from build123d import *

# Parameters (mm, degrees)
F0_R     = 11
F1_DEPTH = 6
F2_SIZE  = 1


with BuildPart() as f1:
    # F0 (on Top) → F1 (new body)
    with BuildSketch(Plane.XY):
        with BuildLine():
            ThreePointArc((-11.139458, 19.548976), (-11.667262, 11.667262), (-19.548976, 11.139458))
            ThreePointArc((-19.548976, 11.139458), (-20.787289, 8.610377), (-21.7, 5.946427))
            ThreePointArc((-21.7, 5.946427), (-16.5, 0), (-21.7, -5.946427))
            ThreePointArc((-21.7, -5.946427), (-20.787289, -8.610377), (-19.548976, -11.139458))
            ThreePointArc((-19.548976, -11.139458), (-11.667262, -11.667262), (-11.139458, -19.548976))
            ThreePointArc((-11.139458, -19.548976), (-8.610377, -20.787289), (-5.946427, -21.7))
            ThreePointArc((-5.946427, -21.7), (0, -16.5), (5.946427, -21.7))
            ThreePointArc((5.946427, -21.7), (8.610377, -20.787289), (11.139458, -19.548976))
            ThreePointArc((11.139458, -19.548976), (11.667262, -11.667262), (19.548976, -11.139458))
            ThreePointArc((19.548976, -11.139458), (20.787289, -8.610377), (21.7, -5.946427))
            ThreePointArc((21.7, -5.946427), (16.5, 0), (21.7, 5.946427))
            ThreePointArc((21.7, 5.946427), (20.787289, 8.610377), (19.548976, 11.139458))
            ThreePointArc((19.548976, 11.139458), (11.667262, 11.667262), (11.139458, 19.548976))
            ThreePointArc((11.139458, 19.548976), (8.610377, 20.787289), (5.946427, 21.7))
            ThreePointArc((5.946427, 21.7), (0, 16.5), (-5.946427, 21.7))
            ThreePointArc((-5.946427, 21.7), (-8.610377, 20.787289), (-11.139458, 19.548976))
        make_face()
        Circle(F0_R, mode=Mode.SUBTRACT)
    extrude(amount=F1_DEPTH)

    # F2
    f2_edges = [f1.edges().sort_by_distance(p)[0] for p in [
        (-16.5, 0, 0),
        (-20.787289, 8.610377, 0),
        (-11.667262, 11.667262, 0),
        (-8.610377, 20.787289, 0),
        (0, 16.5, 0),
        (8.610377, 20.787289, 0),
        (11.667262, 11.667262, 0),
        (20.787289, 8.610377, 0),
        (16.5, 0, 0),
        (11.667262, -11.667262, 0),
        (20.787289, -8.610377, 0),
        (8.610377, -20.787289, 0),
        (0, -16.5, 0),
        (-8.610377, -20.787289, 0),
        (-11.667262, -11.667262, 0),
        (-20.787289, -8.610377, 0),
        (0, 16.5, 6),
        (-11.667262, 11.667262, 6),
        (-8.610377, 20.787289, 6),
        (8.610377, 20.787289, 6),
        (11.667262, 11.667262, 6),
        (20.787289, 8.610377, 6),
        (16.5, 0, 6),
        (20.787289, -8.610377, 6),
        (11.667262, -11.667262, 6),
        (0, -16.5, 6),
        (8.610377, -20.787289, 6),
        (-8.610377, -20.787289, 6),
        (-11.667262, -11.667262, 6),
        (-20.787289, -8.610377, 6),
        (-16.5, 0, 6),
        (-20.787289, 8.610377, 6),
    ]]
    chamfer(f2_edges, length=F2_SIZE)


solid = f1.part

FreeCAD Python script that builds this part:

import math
import FreeCAD as App
import Part
import Sketcher
from FreeCAD import Vector
Q = App.Units.Quantity


def edges_at(feature, points):
    """Names of the edges that pass closest to the given points."""
    edges = feature.Shape.Edges
    near = lambda p: min(range(len(edges)), key=lambda i: edges[i].distToShape(Part.Vertex(*p))[0])
    return sorted({f"Edge{near(p) + 1}" for p in points})

doc = App.newDocument("Part")
body = doc.addObject("PartDesign::Body", "Body")

# Sketch on XY plane
sketch1 = body.newObject("Sketcher::SketchObject", "Sketch")
sketch1.AttachmentSupport = (doc.getObject("XY_Plane"), [""])
sketch1.MapMode = "FlatFace"
sketch1.addGeometry(Part.ArcOfCircle(Part.Circle(Vector(-15.909902, 15.909902, 0), Vector(0, 0, 1), 6), math.radians(-127.337743), math.radians(37.337743)), False)
sketch1.addGeometry(Part.ArcOfCircle(Part.Circle(Vector(0.000038, -0.000016, 0), Vector(0, 0, 1), 22.500041), math.radians(150.324522), math.radians(164.675475)), False)
sketch1.addGeometry(Part.ArcOfCircle(Part.Circle(Vector(-22.499999, 0, 0), Vector(0, 0, 1), 5.999999), math.radians(-82.337749), math.radians(82.337749)), False)
sketch1.addGeometry(Part.ArcOfCircle(Part.Circle(Vector(0.000038, 0.000016, 0), Vector(0, 0, 1), 22.500041), math.radians(-164.675475), math.radians(-150.324522)), False)
sketch1.addGeometry(Part.ArcOfCircle(Part.Circle(Vector(-15.909902, -15.909902, 0), Vector(0, 0, 1), 6), math.radians(-37.337743), math.radians(127.337743)), False)
sketch1.addGeometry(Part.ArcOfCircle(Part.Circle(Vector(0.000016, 0.000038, 0), Vector(0, 0, 1), 22.500041), math.radians(-119.675478), math.radians(-105.324525)), False)
sketch1.addGeometry(Part.ArcOfCircle(Part.Circle(Vector(0, -22.499999, 0), Vector(0, 0, 1), 5.999999), math.radians(7.662251), math.radians(172.337749)), False)
sketch1.addGeometry(Part.ArcOfCircle(Part.Circle(Vector(-0.000016, 0.000038, 0), Vector(0, 0, 1), 22.500041), math.radians(-74.675475), math.radians(-60.324522)), False)
sketch1.addGeometry(Part.ArcOfCircle(Part.Circle(Vector(15.909902, -15.909902, 0), Vector(0, 0, 1), 6), math.radians(52.662257), math.radians(217.337743)), False)
sketch1.addGeometry(Part.ArcOfCircle(Part.Circle(Vector(-0.000038, 0.000016, 0), Vector(0, 0, 1), 22.500041), math.radians(-29.675478), math.radians(-15.324525)), False)
sketch1.addGeometry(Part.ArcOfCircle(Part.Circle(Vector(22.499999, 0, 0), Vector(0, 0, 1), 5.999999), math.radians(97.662251), math.radians(262.337749)), False)
sketch1.addGeometry(Part.ArcOfCircle(Part.Circle(Vector(-0.000038, -0.000016, 0), Vector(0, 0, 1), 22.500041), math.radians(15.324525), math.radians(29.675478)), False)
sketch1.addGeometry(Part.ArcOfCircle(Part.Circle(Vector(15.909902, 15.909902, 0), Vector(0, 0, 1), 6), math.radians(142.662257), math.radians(307.337743)), False)
sketch1.addGeometry(Part.ArcOfCircle(Part.Circle(Vector(-0.000016, -0.000038, 0), Vector(0, 0, 1), 22.500041), math.radians(60.324522), math.radians(74.675475)), False)
sketch1.addGeometry(Part.ArcOfCircle(Part.Circle(Vector(0, 22.499999, 0), Vector(0, 0, 1), 5.999999), math.radians(-172.337749), math.radians(-7.662251)), False)
sketch1.addGeometry(Part.ArcOfCircle(Part.Circle(Vector(0.000016, -0.000038, 0), Vector(0, 0, 1), 22.500041), math.radians(105.324525), math.radians(119.675478)), False)
sketch1.addGeometry(Part.Circle(Vector(0, 0, 0), Vector(0, 0, 1), 11), False)
sketch1.addConstraint(Sketcher.Constraint("Coincident", 0, 1, 1, 1))
sketch1.addConstraint(Sketcher.Constraint("Coincident", 1, 2, 2, 2))
sketch1.addConstraint(Sketcher.Constraint("Coincident", 2, 1, 3, 1))
sketch1.addConstraint(Sketcher.Constraint("Coincident", 3, 2, 4, 2))
sketch1.addConstraint(Sketcher.Constraint("Coincident", 4, 1, 5, 1))
sketch1.addConstraint(Sketcher.Constraint("Coincident", 5, 2, 6, 2))
sketch1.addConstraint(Sketcher.Constraint("Coincident", 6, 1, 7, 1))
sketch1.addConstraint(Sketcher.Constraint("Coincident", 7, 2, 8, 2))
sketch1.addConstraint(Sketcher.Constraint("Coincident", 8, 1, 9, 1))
sketch1.addConstraint(Sketcher.Constraint("Coincident", 9, 2, 10, 2))
sketch1.addConstraint(Sketcher.Constraint("Coincident", 10, 1, 11, 1))
sketch1.addConstraint(Sketcher.Constraint("Coincident", 11, 2, 12, 2))
sketch1.addConstraint(Sketcher.Constraint("Coincident", 12, 1, 13, 1))
sketch1.addConstraint(Sketcher.Constraint("Coincident", 13, 2, 14, 2))
sketch1.addConstraint(Sketcher.Constraint("Coincident", 14, 1, 15, 1))
sketch1.addConstraint(Sketcher.Constraint("Coincident", 15, 2, 0, 2))
sketch1.addConstraint(Sketcher.Constraint("Coincident", 16, 3, -1, 1))
sketch1.addConstraint(Sketcher.Constraint("Equal", 0, 2))
sketch1.addConstraint(Sketcher.Constraint("Equal", 1, 3))
sketch1.addConstraint(Sketcher.Constraint("Equal", 2, 4))
sketch1.addConstraint(Sketcher.Constraint("Equal", 3, 5))
sketch1.addConstraint(Sketcher.Constraint("Equal", 4, 6))
sketch1.addConstraint(Sketcher.Constraint("Equal", 5, 7))
sketch1.addConstraint(Sketcher.Constraint("Equal", 6, 8))
sketch1.addConstraint(Sketcher.Constraint("Equal", 7, 9))
sketch1.addConstraint(Sketcher.Constraint("Equal", 8, 10))
sketch1.addConstraint(Sketcher.Constraint("Equal", 9, 11))
sketch1.addConstraint(Sketcher.Constraint("Equal", 10, 12))
sketch1.addConstraint(Sketcher.Constraint("Equal", 11, 13))
sketch1.addConstraint(Sketcher.Constraint("Equal", 12, 14))
sketch1.addConstraint(Sketcher.Constraint("Equal", 13, 15))
sketch1.addConstraint(Sketcher.Constraint("Symmetric", 0, 3, 8, 3, -1, 1))
sketch1.addConstraint(Sketcher.Constraint("Symmetric", 1, 3, 9, 3, -1, 1))
sketch1.addConstraint(Sketcher.Constraint("Symmetric", 2, 3, 10, 3, -1, 1))
sketch1.addConstraint(Sketcher.Constraint("Symmetric", 3, 3, 11, 3, -1, 1))
sketch1.addConstraint(Sketcher.Constraint("Symmetric", 4, 3, 12, 3, -1, 1))
sketch1.addConstraint(Sketcher.Constraint("Symmetric", 5, 3, 13, 3, -1, 1))
sketch1.addConstraint(Sketcher.Constraint("Symmetric", 6, 3, 14, 3, -1, 1))
sketch1.addConstraint(Sketcher.Constraint("Symmetric", 7, 3, 15, 3, -1, 1))
sketch1.addConstraint(Sketcher.Constraint("Symmetric", 5, 3, 7, 3, -2))
sketch1.addConstraint(Sketcher.Constraint("Symmetric", 4, 3, 8, 3, -2))
sketch1.addConstraint(Sketcher.Constraint("Symmetric", 3, 3, 9, 3, -2))
sketch1.addConstraint(Sketcher.Constraint("PointOnObject", 2, 3, -1))
sketch1.addConstraint(Sketcher.Constraint("PointOnObject", 6, 3, -2))
sketch1.addConstraint(Sketcher.Constraint("Diameter", 16, Q("22 mm")))
sketch1.addConstraint(Sketcher.Constraint("Radius", 0, Q("6 mm")))
sketch1.addConstraint(Sketcher.Constraint("DistanceX", 2, 3, -1, 1, Q("22.499999 mm")))
sketch1.addConstraint(Sketcher.Constraint("DistanceY", 6, 3, -1, 1, Q("22.499999 mm")))
sketch1.addConstraint(Sketcher.Constraint("DistanceX", 1, 2, -1, 1, Q("21.7 mm")))
sketch1.addConstraint(Sketcher.Constraint("DistanceY", 5, 2, -1, 1, Q("21.7 mm")))
sketch1.addConstraint(Sketcher.Constraint("Radius", 1, Q("22.500041 mm")))
sketch1.addConstraint(Sketcher.Constraint("DistanceY", -1, 1, 0, 1, Q("11.139458 mm")))
sketch1.addConstraint(Sketcher.Constraint("DistanceX", 4, 1, -1, 1, Q("11.139458 mm")))
sketch1.addConstraint(Sketcher.Constraint("DistanceX", 0, 3, 1, 3, Q("15.90994 mm")))
sketch1.addConstraint(Sketcher.Constraint("DistanceY", 1, 3, 0, 3, Q("15.909919 mm")))
pad1 = body.newObject("PartDesign::Pad", "Pad")
pad1.Profile = sketch1
pad1.Length = 6
doc.recompute()

chamfer = body.newObject("PartDesign::Chamfer", "Chamfer")
chamfer.Base = (pad1, edges_at(pad1, [
    (-16.5, 0, 0),
    (-20.787, 8.61, 0),
    (-11.667, 11.667, 0),
    (-8.61, 20.787, 0),
    (0, 16.5, 0),
    (8.61, 20.787, 0),
    (11.667, 11.667, 0),
    (20.787, 8.61, 0),
    (16.5, 0, 0),
    (11.667, -11.667, 0),
    (20.787, -8.61, 0),
    (8.61, -20.787, 0),
    (0, -16.5, 0),
    (-8.61, -20.787, 0),
    (-11.667, -11.667, 0),
    (-20.787, -8.61, 0),
    (0, 16.5, 6),
    (-11.667, 11.667, 6),
    (-8.61, 20.787, 6),
    (8.61, 20.787, 6),
    (11.667, 11.667, 6),
    (20.787, 8.61, 6),
    (16.5, 0, 6),
    (20.787, -8.61, 6),
    (11.667, -11.667, 6),
    (0, -16.5, 6),
    (8.61, -20.787, 6),
    (-8.61, -20.787, 6),
    (-11.667, -11.667, 6),
    (-20.787, -8.61, 6),
    (-16.5, 0, 6),
    (-20.787, 8.61, 6),
]))
chamfer.Size = 1

doc.recompute()
